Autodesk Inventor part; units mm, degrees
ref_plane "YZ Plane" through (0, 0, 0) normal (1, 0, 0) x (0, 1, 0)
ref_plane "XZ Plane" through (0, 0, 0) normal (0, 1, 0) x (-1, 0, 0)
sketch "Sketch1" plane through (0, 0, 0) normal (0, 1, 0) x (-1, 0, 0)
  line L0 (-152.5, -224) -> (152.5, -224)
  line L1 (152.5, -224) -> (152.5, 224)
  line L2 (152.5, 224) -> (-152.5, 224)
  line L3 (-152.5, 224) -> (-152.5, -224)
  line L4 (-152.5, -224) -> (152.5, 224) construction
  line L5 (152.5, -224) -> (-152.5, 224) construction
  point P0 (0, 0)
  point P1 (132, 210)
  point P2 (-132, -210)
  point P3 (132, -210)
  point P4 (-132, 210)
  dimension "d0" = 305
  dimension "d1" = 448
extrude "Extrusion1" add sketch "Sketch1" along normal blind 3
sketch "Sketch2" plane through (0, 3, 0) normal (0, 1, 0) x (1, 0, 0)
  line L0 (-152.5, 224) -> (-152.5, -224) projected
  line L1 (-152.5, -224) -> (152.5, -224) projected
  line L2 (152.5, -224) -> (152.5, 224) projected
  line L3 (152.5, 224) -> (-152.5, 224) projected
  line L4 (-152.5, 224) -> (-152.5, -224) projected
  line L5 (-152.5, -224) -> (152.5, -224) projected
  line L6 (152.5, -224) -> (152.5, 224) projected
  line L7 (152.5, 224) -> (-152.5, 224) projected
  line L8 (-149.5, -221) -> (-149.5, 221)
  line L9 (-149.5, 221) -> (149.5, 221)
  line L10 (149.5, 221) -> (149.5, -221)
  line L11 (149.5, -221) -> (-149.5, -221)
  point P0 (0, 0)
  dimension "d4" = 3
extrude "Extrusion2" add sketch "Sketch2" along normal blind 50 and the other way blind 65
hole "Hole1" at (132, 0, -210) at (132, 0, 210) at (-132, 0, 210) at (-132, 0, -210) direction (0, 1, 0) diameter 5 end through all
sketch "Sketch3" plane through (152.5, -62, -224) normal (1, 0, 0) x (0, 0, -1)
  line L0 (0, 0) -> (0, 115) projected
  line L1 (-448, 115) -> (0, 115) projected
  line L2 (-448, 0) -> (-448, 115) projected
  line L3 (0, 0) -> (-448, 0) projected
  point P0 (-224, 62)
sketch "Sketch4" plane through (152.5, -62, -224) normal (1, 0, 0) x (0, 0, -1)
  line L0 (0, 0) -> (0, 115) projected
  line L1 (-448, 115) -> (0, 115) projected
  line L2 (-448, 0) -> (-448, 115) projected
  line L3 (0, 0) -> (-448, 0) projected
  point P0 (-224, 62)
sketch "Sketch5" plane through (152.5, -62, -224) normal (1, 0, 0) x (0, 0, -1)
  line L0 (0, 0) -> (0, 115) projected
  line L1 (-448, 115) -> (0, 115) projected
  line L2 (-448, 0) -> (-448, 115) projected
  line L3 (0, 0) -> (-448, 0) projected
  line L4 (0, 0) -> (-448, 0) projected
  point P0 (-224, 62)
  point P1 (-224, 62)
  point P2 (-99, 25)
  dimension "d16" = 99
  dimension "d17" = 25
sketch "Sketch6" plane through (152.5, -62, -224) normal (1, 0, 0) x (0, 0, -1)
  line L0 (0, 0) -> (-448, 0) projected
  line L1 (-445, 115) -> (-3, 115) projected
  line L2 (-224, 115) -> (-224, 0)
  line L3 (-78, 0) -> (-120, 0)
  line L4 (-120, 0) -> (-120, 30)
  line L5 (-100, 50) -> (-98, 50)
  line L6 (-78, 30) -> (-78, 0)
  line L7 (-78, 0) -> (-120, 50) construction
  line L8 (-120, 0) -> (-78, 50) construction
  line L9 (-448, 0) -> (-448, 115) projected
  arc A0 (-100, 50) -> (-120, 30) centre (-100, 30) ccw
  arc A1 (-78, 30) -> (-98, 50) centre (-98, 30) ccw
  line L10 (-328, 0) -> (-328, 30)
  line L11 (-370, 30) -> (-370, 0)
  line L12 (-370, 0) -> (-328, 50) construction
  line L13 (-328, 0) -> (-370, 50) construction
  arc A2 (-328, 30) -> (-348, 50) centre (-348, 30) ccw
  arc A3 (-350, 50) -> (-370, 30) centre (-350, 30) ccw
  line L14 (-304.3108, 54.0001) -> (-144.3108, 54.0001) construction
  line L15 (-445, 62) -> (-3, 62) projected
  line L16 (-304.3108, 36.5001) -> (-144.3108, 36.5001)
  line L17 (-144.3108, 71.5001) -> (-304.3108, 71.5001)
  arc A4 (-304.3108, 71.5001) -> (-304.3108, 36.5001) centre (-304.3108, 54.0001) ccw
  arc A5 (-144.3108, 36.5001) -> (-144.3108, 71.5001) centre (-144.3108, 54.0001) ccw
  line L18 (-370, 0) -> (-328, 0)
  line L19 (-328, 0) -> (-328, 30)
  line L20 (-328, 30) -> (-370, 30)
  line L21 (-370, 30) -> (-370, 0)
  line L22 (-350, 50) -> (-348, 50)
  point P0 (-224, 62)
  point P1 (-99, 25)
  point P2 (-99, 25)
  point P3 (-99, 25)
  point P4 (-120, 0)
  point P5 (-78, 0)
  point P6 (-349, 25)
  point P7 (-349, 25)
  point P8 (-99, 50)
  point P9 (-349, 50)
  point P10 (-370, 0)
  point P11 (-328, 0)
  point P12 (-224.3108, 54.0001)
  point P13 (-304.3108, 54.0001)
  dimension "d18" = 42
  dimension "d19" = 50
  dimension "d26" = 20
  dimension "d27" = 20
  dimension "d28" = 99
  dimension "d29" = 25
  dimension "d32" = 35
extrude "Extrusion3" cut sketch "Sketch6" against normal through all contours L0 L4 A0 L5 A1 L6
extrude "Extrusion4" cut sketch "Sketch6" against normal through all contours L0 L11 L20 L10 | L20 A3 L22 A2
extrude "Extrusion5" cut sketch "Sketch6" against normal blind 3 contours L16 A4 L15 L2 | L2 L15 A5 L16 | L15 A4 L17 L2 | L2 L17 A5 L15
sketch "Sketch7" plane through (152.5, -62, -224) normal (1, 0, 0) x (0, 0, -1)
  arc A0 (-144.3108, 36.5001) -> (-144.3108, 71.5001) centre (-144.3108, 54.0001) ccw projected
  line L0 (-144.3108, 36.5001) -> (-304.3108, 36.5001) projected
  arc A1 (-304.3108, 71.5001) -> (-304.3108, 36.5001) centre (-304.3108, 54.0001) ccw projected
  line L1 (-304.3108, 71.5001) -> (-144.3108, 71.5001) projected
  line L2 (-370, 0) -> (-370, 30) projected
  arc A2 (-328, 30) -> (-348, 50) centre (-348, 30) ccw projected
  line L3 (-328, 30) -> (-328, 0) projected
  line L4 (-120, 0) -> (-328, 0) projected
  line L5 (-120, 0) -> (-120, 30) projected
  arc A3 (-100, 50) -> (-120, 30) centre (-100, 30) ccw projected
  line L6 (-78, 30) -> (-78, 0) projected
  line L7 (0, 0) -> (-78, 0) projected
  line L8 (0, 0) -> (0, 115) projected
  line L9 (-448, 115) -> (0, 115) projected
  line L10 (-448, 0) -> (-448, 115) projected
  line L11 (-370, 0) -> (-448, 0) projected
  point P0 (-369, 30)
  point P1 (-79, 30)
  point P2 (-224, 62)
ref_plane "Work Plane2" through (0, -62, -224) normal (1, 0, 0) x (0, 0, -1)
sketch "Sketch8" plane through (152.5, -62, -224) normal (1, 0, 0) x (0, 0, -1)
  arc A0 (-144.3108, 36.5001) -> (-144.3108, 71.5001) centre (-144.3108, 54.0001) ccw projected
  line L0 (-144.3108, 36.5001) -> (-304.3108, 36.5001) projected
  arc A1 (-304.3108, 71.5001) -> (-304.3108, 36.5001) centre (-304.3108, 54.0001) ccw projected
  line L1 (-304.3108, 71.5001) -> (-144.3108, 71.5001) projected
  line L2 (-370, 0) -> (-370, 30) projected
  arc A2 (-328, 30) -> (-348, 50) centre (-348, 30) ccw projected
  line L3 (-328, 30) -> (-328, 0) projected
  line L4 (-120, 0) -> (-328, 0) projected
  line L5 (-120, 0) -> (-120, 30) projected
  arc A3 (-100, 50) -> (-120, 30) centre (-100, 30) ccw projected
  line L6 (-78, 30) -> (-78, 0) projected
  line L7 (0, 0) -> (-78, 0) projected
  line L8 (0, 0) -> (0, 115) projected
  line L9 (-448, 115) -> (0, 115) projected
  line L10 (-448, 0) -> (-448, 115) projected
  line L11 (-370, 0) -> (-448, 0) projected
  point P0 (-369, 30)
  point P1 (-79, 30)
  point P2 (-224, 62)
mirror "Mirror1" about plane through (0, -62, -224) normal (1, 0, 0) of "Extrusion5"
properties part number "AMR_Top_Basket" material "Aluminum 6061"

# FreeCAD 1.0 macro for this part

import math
import FreeCAD as App
import Part
import Sketcher

V = App.Vector


def add_polygon(sketch, points):
    """Adds a closed chain of lines whose ends are joined by coincident constraints."""
    first, n = sketch.GeometryCount, len(points)
    for a, b in zip(points, points[1:] + points[:1]):
        sketch.addGeometry(Part.LineSegment(App.Vector(*a, 0), App.Vector(*b, 0)), False)
    for i in range(n):
        sketch.addConstraint(Sketcher.Constraint("Coincident", first + i, 2, first + (i + 1) % n, 1))

doc = App.newDocument("Part")
body = doc.addObject("PartDesign::Body", "Body")

# Sketch on XZ plane
sketch1 = doc.addObject("Sketcher::SketchObject", "Sketch")
body.addObject(sketch1)
sketch1.AttachmentSupport = (doc.XZ_Plane, [""])
sketch1.MapMode = "FlatFace"
add_polygon(sketch1, [(152.5, 224), (152.5, -224), (-152.5, -224), (-152.5, 224)])  # lines 0-3
sketch1.addConstraint(Sketcher.Constraint("Vertical", 0))
sketch1.addConstraint(Sketcher.Constraint("Horizontal", 1))
sketch1.addConstraint(Sketcher.Constraint("Vertical", 2))
sketch1.addConstraint(Sketcher.Constraint("Horizontal", 3))
sketch1.addConstraint(Sketcher.Constraint("Symmetric", 0, 2, 2, 2, -1, 1))
sketch1.addConstraint(Sketcher.Constraint("DistanceX", 1, 2, 1, 1, 305.0))
sketch1.addConstraint(Sketcher.Constraint("DistanceY", 0, 2, 0, 1, 448.0))
pad1 = doc.addObject("PartDesign::Pad", "Pad")
body.addObject(pad1)
pad1.Profile = sketch1
pad1.Length = 3
pad1.Reversed = True

# Sketch on XZ plane
sketch2 = doc.addObject("Sketcher::SketchObject", "Sketch001")
body.addObject(sketch2)
sketch2.AttachmentSupport = (doc.XZ_Plane, [""])
sketch2.MapMode = "FlatFace"
sketch2.AttachmentOffset = App.Placement(V(0, 0, -3), App.Rotation())
add_polygon(sketch2, [(152.5, -224), (-152.5, -224), (-152.5, 224), (152.5, 224)])  # lines 0-3
add_polygon(sketch2, [(149.5, 221), (-149.5, 221), (-149.5, -221), (149.5, -221)])  # lines 4-7
sketch2.addConstraint(Sketcher.Constraint("Horizontal", 0))
sketch2.addConstraint(Sketcher.Constraint("Vertical", 1))
sketch2.addConstraint(Sketcher.Constraint("Horizontal", 2))
sketch2.addConstraint(Sketcher.Constraint("Vertical", 3))
sketch2.addConstraint(Sketcher.Constraint("Horizontal", 4))
sketch2.addConstraint(Sketcher.Constraint("Vertical", 5))
sketch2.addConstraint(Sketcher.Constraint("Horizontal", 6))
sketch2.addConstraint(Sketcher.Constraint("Vertical", 7))
sketch2.addConstraint(Sketcher.Constraint("Symmetric", 0, 2, 2, 2, -1, 1))
sketch2.addConstraint(Sketcher.Constraint("Symmetric", 4, 2, 6, 2, -1, 1))
sketch2.addConstraint(Sketcher.Constraint("DistanceX", 1, 2, 4, 2, 3.0))
sketch2.addConstraint(Sketcher.Constraint("DistanceY", 4, 2, 1, 2, 3.0))
sketch2.addConstraint(Sketcher.Constraint("DistanceX", 0, 2, 0, 1, 305.0))
sketch2.addConstraint(Sketcher.Constraint("DistanceY", 1, 1, 1, 2, 448.0))
pad2 = doc.addObject("PartDesign::Pad", "Pad001")
body.addObject(pad2)
pad2.Profile = sketch2
pad2.Type = "TwoLengths"
pad2.Length = 50
pad2.Length2 = 65
pad2.Reversed = True

# Sketch on XZ plane
sketch3 = doc.addObject("Sketcher::SketchObject", "Sketch002")
body.addObject(sketch3)
sketch3.AttachmentSupport = (doc.XZ_Plane, [""])
sketch3.MapMode = "FlatFace"
sketch3.addGeometry(Part.Circle(V(132, -210, 0), V(0, 0, 1), 2.5), False)
sketch3.addGeometry(Part.Circle(V(132, 210, 0), V(0, 0, 1), 2.5), False)
sketch3.addGeometry(Part.Circle(V(-132, 210, 0), V(0, 0, 1), 2.5), False)
sketch3.addGeometry(Part.Circle(V(-132, -210, 0), V(0, 0, 1), 2.5), False)
sketch3.addConstraint(Sketcher.Constraint("Equal", 0, 1))
sketch3.addConstraint(Sketcher.Constraint("Equal", 1, 2))
sketch3.addConstraint(Sketcher.Constraint("Equal", 2, 3))
sketch3.addConstraint(Sketcher.Constraint("Symmetric", 0, 3, 2, 3, -1, 1))
sketch3.addConstraint(Sketcher.Constraint("Symmetric", 1, 3, 3, 3, -1, 1))
sketch3.addConstraint(Sketcher.Constraint("Symmetric", 1, 3, 2, 3, -2))
sketch3.addConstraint(Sketcher.Constraint("Diameter", 0, 5.0))
sketch3.addConstraint(Sketcher.Constraint("DistanceX", -1, 1, 0, 3, 132.0))
sketch3.addConstraint(Sketcher.Constraint("DistanceY", 0, 3, -1, 1, 210.0))
doc.recompute()
hole = doc.addObject("PartDesign::Hole", "Hole")
body.addObject(hole)
hole.Profile = sketch3
hole.ThreadType = "None"
hole.Diameter = 5
hole.DepthType = "ThroughAll"

# Sketch on YZ plane
sketch4 = doc.addObject("Sketcher::SketchObject", "Sketch003")
body.addObject(sketch4)
sketch4.AttachmentSupport = (doc.YZ_Plane, [""])
sketch4.MapMode = "FlatFace"
sketch4.AttachmentOffset = App.Placement(V(0, 0, 152.5), App.Rotation())
sketch4.addGeometry(Part.LineSegment(V(-62, -104, 0), V(-62, -146, 0)), False)
sketch4.addGeometry(Part.LineSegment(V(-62, -146, 0), V(-32, -146, 0)), False)
sketch4.addGeometry(Part.ArcOfCircle(Part.Circle(V(-32, -126, 0), V(0, 0, 1), 20), math.radians(-90), math.radians(0)), False)
sketch4.addGeometry(Part.LineSegment(V(-12, -126, 0), V(-12, -124, 0)), False)
sketch4.addGeometry(Part.ArcOfCircle(Part.Circle(V(-32, -124, 0), V(0, 0, 1), 20), math.radians(0), math.radians(90)), False)
sketch4.addGeometry(Part.LineSegment(V(-32, -104, 0), V(-62, -104, 0)), False)
sketch4.addConstraint(Sketcher.Constraint("Coincident", 0, 2, 1, 1))
sketch4.addConstraint(Sketcher.Constraint("Tangent", 1, 2, 2, 1))
sketch4.addConstraint(Sketcher.Constraint("Tangent", 2, 2, 3, 1))
sketch4.addConstraint(Sketcher.Constraint("Tangent", 3, 2, 4, 1))
sketch4.addConstraint(Sketcher.Constraint("Tangent", 4, 2, 5, 1))
sketch4.addConstraint(Sketcher.Constraint("Coincident", 5, 2, 0, 1))
sketch4.addConstraint(Sketcher.Constraint("Vertical", 0))
sketch4.addConstraint(Sketcher.Constraint("Horizontal", 1))
sketch4.addConstraint(Sketcher.Constraint("Vertical", 3))
sketch4.addConstraint(Sketcher.Constraint("Horizontal", 5))
sketch4.addConstraint(Sketcher.Constraint("Equal", 2, 4))
sketch4.addConstraint(Sketcher.Constraint("Radius", 2, 20.0))
sketch4.addConstraint(Sketcher.Constraint("DistanceY", 0, 2, 0, 1, 42.0))
sketch4.addConstraint(Sketcher.Constraint("DistanceX", 0, 2, 2, 2, 50.0))
sketch4.addConstraint(Sketcher.Constraint("DistanceX", 2, 3, -1, 1, 32.0))
sketch4.addConstraint(Sketcher.Constraint("DistanceY", 2, 3, -1, 1, 126.0))
pocket1 = doc.addObject("PartDesign::Pocket", "Pocket")
body.addObject(pocket1)
pocket1.Profile = sketch4
pocket1.Type = "ThroughAll"

# Sketch on YZ plane
sketch5 = doc.addObject("Sketcher::SketchObject", "Sketch004")
body.addObject(sketch5)
sketch5.AttachmentSupport = (doc.YZ_Plane, [""])
sketch5.MapMode = "FlatFace"
sketch5.AttachmentOffset = App.Placement(V(0, 0, 152.5), App.Rotation())
sketch5.addGeometry(Part.LineSegment(V(-62, 146, 0), V(-62, 104, 0)), False)
sketch5.addGeometry(Part.LineSegment(V(-62, 104, 0), V(-32, 104, 0)), False)
sketch5.addGeometry(Part.ArcOfCircle(Part.Circle(V(-32, 124, 0), V(0, 0, 1), 20), math.radians(-90), math.radians(0)), False)
sketch5.addGeometry(Part.LineSegment(V(-12, 124, 0), V(-12, 126, 0)), False)
sketch5.addGeometry(Part.ArcOfCircle(Part.Circle(V(-32, 126, 0), V(0, 0, 1), 20), math.radians(0), math.radians(90)), False)
sketch5.addGeometry(Part.LineSegment(V(-32, 146, 0), V(-62, 146, 0)), False)
sketch5.addConstraint(Sketcher.Constraint("Coincident", 0, 2, 1, 1))
sketch5.addConstraint(Sketcher.Constraint("Tangent", 1, 2, 2, 1))
sketch5.addConstraint(Sketcher.Constraint("Tangent", 2, 2, 3, 1))
sketch5.addConstraint(Sketcher.Constraint("Tangent", 3, 2, 4, 1))
sketch5.addConstraint(Sketcher.Constraint("Tangent", 4, 2, 5, 1))
sketch5.addConstraint(Sketcher.Constraint("Coincident", 5, 2, 0, 1))
sketch5.addConstraint(Sketcher.Constraint("Vertical", 0))
sketch5.addConstraint(Sketcher.Constraint("Horizontal", 1))
sketch5.addConstraint(Sketcher.Constraint("Vertical", 3))
sketch5.addConstraint(Sketcher.Constraint("Horizontal", 5))
sketch5.addConstraint(Sketcher.Constraint("Equal", 2, 4))
sketch5.addConstraint(Sketcher.Constraint("Radius", 2, 20.0))
sketch5.addConstraint(Sketcher.Constraint("DistanceY", 0, 2, 0, 1, 42.0))
sketch5.addConstraint(Sketcher.Constraint("DistanceX", 0, 2, 2, 2, 50.0))
sketch5.addConstraint(Sketcher.Constraint("DistanceX", 2, 3, -1, 1, 32.0))
sketch5.addConstraint(Sketcher.Constraint("DistanceY", -1, 1, 2, 3, 124.0))
pocket2 = doc.addObject("PartDesign::Pocket", "Pocket001")
body.addObject(pocket2)
pocket2.Profile = sketch5
pocket2.Type = "ThroughAll"

# Sketch on YZ plane
sketch6 = doc.addObject("Sketcher::SketchObject", "Sketch005")
body.addObject(sketch6)
sketch6.AttachmentSupport = (doc.YZ_Plane, [""])
sketch6.MapMode = "FlatFace"
sketch6.AttachmentOffset = App.Placement(V(0, 0, 152.5), App.Rotation())
sketch6.addGeometry(Part.LineSegment(V(-25.4999, 80.3108, 0), V(-25.4999, -79.6892, 0)), False)
sketch6.addGeometry(Part.ArcOfCircle(Part.Circle(V(-7.9999, -79.6892, 0), V(0, 0, 1), 17.5), math.radians(180), math.radians(360)), False)
sketch6.addGeometry(Part.LineSegment(V(9.5001, -79.6892, 0), V(9.5001, 80.3108, 0)), False)
sketch6.addGeometry(Part.ArcOfCircle(Part.Circle(V(-7.9999, 80.3108, 0), V(0, 0, 1), 17.5), math.radians(0), math.radians(180)), False)
sketch6.addConstraint(Sketcher.Constraint("Tangent", 0, 2, 1, 1))
sketch6.addConstraint(Sketcher.Constraint("Tangent", 1, 2, 2, 1))
sketch6.addConstraint(Sketcher.Constraint("Tangent", 2, 2, 3, 1))
sketch6.addConstraint(Sketcher.Constraint("Tangent", 3, 2, 0, 1))
sketch6.addConstraint(Sketcher.Constraint("Vertical", 0))
sketch6.addConstraint(Sketcher.Constraint("Vertical", 2))
sketch6.addConstraint(Sketcher.Constraint("Radius", 1, 17.5))
sketch6.addConstraint(Sketcher.Constraint("DistanceY", 0, 2, 0, 1, 160.0))
sketch6.addConstraint(Sketcher.Constraint("DistanceX", 1, 3, -1, 1, 8.0))
sketch6.addConstraint(Sketcher.Constraint("DistanceY", 1, 3, -1, 1, 79.6892))
pocket3 = doc.addObject("PartDesign::Pocket", "Pocket002")
body.addObject(pocket3)
pocket3.Profile = sketch6
pocket3.Length = 3
doc.recompute()

mirrored = doc.addObject("PartDesign::Mirrored", "Mirrored")
body.addObject(mirrored)
mirrored.Originals = [pocket3]
mirrored.MirrorPlane = (doc.YZ_Plane, [""])
body.Tip = mirrored

doc.recompute()
